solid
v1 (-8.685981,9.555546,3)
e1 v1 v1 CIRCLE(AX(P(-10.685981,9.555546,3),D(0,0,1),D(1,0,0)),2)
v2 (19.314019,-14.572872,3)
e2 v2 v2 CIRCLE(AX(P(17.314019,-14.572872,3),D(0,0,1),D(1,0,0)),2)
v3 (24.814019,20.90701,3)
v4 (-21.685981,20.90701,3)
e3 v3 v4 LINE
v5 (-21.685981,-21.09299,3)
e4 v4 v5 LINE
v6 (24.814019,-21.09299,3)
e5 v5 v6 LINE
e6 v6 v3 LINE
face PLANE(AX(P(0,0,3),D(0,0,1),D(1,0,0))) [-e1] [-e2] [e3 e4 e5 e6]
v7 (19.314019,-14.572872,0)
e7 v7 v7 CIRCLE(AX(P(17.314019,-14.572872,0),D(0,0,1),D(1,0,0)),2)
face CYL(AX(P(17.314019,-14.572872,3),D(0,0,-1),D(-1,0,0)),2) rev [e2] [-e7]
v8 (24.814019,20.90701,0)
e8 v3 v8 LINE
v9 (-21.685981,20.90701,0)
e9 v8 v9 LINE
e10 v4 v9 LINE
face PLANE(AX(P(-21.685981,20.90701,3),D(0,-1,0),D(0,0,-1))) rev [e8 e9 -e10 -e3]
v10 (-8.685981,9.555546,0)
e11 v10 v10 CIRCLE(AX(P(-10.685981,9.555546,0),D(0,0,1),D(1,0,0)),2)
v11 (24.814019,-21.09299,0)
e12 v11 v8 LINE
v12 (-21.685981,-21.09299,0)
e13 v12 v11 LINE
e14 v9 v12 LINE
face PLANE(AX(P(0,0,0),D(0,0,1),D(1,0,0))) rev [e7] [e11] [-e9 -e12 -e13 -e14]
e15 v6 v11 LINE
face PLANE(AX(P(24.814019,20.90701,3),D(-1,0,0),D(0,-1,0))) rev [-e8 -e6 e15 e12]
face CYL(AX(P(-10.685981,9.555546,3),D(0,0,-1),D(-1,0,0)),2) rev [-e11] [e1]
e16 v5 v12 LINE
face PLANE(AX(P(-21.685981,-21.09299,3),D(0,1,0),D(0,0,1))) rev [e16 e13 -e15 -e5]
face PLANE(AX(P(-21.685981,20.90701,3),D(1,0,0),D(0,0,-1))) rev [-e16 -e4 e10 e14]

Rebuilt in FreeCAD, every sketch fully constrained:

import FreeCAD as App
import Part
import Sketcher
from FreeCAD import Vector
Q = App.Units.Quantity

doc = App.newDocument("Part")
body = doc.addObject("PartDesign::Body", "Body")

# Sketch on XY plane
sketch1 = body.newObject("Sketcher::SketchObject", "Sketch")
sketch1.AttachmentSupport = (doc.getObject("XY_Plane"), [""])
sketch1.MapMode = "FlatFace"
sketch1.addGeometry([
    Part.LineSegment(Vector(-21.685981, 20.90701, 0), Vector(-21.685981, -21.09299, 0)),  # 0
    Part.LineSegment(Vector(-21.685981, -21.09299, 0), Vector(24.814019, -21.09299, 0)),  # 1
    Part.LineSegment(Vector(24.814019, -21.09299, 0), Vector(24.814019, 20.90701, 0)),  # 2
    Part.LineSegment(Vector(24.814019, 20.90701, 0), Vector(-21.685981, 20.90701, 0)),  # 3
    Part.Circle(Vector(17.314019, -14.572872, 0), Vector(0, 0, 1), 2),  # 4
    Part.Circle(Vector(-10.685981, 9.555546, 0), Vector(0, 0, 1), 2),  # 5
], False)
sketch1.addConstraint([
    Sketcher.Constraint("Coincident", 0, 2, 1, 1),
    Sketcher.Constraint("Coincident", 1, 2, 2, 1),
    Sketcher.Constraint("Coincident", 2, 2, 3, 1),
    Sketcher.Constraint("Coincident", 3, 2, 0, 1),
    Sketcher.Constraint("Vertical", 0),
    Sketcher.Constraint("Horizontal", 1),
    Sketcher.Constraint("Vertical", 2),
    Sketcher.Constraint("Horizontal", 3),
    Sketcher.Constraint("Equal", 4, 5),
    Sketcher.Constraint("Diameter", 4, Q("4 mm")),
    Sketcher.Constraint("DistanceY", 0, 2, 0, 1, Q("42 mm")),
    Sketcher.Constraint("DistanceX", 1, 1, 1, 2, Q("46.5 mm")),
    Sketcher.Constraint("DistanceX", 5, 3, 4, 3, Q("28 mm")),
    Sketcher.Constraint("DistanceX", 0, 2, 5, 3, Q("11 mm")),
    Sketcher.Constraint("DistanceX", -1, 1, 4, 3, Q("17.314019 mm")),
    Sketcher.Constraint("DistanceY", 0, 2, -1, 1, Q("21.09299 mm")),
    Sketcher.Constraint("DistanceY", 4, 3, 5, 3, Q("24.128419 mm")),
    Sketcher.Constraint("DistanceY", 4, 3, -1, 1, Q("14.572872 mm")),
])
pad1 = body.newObject("PartDesign::Pad", "Pad")
pad1.Profile = sketch1
pad1.Length = 3

doc.recompute()
